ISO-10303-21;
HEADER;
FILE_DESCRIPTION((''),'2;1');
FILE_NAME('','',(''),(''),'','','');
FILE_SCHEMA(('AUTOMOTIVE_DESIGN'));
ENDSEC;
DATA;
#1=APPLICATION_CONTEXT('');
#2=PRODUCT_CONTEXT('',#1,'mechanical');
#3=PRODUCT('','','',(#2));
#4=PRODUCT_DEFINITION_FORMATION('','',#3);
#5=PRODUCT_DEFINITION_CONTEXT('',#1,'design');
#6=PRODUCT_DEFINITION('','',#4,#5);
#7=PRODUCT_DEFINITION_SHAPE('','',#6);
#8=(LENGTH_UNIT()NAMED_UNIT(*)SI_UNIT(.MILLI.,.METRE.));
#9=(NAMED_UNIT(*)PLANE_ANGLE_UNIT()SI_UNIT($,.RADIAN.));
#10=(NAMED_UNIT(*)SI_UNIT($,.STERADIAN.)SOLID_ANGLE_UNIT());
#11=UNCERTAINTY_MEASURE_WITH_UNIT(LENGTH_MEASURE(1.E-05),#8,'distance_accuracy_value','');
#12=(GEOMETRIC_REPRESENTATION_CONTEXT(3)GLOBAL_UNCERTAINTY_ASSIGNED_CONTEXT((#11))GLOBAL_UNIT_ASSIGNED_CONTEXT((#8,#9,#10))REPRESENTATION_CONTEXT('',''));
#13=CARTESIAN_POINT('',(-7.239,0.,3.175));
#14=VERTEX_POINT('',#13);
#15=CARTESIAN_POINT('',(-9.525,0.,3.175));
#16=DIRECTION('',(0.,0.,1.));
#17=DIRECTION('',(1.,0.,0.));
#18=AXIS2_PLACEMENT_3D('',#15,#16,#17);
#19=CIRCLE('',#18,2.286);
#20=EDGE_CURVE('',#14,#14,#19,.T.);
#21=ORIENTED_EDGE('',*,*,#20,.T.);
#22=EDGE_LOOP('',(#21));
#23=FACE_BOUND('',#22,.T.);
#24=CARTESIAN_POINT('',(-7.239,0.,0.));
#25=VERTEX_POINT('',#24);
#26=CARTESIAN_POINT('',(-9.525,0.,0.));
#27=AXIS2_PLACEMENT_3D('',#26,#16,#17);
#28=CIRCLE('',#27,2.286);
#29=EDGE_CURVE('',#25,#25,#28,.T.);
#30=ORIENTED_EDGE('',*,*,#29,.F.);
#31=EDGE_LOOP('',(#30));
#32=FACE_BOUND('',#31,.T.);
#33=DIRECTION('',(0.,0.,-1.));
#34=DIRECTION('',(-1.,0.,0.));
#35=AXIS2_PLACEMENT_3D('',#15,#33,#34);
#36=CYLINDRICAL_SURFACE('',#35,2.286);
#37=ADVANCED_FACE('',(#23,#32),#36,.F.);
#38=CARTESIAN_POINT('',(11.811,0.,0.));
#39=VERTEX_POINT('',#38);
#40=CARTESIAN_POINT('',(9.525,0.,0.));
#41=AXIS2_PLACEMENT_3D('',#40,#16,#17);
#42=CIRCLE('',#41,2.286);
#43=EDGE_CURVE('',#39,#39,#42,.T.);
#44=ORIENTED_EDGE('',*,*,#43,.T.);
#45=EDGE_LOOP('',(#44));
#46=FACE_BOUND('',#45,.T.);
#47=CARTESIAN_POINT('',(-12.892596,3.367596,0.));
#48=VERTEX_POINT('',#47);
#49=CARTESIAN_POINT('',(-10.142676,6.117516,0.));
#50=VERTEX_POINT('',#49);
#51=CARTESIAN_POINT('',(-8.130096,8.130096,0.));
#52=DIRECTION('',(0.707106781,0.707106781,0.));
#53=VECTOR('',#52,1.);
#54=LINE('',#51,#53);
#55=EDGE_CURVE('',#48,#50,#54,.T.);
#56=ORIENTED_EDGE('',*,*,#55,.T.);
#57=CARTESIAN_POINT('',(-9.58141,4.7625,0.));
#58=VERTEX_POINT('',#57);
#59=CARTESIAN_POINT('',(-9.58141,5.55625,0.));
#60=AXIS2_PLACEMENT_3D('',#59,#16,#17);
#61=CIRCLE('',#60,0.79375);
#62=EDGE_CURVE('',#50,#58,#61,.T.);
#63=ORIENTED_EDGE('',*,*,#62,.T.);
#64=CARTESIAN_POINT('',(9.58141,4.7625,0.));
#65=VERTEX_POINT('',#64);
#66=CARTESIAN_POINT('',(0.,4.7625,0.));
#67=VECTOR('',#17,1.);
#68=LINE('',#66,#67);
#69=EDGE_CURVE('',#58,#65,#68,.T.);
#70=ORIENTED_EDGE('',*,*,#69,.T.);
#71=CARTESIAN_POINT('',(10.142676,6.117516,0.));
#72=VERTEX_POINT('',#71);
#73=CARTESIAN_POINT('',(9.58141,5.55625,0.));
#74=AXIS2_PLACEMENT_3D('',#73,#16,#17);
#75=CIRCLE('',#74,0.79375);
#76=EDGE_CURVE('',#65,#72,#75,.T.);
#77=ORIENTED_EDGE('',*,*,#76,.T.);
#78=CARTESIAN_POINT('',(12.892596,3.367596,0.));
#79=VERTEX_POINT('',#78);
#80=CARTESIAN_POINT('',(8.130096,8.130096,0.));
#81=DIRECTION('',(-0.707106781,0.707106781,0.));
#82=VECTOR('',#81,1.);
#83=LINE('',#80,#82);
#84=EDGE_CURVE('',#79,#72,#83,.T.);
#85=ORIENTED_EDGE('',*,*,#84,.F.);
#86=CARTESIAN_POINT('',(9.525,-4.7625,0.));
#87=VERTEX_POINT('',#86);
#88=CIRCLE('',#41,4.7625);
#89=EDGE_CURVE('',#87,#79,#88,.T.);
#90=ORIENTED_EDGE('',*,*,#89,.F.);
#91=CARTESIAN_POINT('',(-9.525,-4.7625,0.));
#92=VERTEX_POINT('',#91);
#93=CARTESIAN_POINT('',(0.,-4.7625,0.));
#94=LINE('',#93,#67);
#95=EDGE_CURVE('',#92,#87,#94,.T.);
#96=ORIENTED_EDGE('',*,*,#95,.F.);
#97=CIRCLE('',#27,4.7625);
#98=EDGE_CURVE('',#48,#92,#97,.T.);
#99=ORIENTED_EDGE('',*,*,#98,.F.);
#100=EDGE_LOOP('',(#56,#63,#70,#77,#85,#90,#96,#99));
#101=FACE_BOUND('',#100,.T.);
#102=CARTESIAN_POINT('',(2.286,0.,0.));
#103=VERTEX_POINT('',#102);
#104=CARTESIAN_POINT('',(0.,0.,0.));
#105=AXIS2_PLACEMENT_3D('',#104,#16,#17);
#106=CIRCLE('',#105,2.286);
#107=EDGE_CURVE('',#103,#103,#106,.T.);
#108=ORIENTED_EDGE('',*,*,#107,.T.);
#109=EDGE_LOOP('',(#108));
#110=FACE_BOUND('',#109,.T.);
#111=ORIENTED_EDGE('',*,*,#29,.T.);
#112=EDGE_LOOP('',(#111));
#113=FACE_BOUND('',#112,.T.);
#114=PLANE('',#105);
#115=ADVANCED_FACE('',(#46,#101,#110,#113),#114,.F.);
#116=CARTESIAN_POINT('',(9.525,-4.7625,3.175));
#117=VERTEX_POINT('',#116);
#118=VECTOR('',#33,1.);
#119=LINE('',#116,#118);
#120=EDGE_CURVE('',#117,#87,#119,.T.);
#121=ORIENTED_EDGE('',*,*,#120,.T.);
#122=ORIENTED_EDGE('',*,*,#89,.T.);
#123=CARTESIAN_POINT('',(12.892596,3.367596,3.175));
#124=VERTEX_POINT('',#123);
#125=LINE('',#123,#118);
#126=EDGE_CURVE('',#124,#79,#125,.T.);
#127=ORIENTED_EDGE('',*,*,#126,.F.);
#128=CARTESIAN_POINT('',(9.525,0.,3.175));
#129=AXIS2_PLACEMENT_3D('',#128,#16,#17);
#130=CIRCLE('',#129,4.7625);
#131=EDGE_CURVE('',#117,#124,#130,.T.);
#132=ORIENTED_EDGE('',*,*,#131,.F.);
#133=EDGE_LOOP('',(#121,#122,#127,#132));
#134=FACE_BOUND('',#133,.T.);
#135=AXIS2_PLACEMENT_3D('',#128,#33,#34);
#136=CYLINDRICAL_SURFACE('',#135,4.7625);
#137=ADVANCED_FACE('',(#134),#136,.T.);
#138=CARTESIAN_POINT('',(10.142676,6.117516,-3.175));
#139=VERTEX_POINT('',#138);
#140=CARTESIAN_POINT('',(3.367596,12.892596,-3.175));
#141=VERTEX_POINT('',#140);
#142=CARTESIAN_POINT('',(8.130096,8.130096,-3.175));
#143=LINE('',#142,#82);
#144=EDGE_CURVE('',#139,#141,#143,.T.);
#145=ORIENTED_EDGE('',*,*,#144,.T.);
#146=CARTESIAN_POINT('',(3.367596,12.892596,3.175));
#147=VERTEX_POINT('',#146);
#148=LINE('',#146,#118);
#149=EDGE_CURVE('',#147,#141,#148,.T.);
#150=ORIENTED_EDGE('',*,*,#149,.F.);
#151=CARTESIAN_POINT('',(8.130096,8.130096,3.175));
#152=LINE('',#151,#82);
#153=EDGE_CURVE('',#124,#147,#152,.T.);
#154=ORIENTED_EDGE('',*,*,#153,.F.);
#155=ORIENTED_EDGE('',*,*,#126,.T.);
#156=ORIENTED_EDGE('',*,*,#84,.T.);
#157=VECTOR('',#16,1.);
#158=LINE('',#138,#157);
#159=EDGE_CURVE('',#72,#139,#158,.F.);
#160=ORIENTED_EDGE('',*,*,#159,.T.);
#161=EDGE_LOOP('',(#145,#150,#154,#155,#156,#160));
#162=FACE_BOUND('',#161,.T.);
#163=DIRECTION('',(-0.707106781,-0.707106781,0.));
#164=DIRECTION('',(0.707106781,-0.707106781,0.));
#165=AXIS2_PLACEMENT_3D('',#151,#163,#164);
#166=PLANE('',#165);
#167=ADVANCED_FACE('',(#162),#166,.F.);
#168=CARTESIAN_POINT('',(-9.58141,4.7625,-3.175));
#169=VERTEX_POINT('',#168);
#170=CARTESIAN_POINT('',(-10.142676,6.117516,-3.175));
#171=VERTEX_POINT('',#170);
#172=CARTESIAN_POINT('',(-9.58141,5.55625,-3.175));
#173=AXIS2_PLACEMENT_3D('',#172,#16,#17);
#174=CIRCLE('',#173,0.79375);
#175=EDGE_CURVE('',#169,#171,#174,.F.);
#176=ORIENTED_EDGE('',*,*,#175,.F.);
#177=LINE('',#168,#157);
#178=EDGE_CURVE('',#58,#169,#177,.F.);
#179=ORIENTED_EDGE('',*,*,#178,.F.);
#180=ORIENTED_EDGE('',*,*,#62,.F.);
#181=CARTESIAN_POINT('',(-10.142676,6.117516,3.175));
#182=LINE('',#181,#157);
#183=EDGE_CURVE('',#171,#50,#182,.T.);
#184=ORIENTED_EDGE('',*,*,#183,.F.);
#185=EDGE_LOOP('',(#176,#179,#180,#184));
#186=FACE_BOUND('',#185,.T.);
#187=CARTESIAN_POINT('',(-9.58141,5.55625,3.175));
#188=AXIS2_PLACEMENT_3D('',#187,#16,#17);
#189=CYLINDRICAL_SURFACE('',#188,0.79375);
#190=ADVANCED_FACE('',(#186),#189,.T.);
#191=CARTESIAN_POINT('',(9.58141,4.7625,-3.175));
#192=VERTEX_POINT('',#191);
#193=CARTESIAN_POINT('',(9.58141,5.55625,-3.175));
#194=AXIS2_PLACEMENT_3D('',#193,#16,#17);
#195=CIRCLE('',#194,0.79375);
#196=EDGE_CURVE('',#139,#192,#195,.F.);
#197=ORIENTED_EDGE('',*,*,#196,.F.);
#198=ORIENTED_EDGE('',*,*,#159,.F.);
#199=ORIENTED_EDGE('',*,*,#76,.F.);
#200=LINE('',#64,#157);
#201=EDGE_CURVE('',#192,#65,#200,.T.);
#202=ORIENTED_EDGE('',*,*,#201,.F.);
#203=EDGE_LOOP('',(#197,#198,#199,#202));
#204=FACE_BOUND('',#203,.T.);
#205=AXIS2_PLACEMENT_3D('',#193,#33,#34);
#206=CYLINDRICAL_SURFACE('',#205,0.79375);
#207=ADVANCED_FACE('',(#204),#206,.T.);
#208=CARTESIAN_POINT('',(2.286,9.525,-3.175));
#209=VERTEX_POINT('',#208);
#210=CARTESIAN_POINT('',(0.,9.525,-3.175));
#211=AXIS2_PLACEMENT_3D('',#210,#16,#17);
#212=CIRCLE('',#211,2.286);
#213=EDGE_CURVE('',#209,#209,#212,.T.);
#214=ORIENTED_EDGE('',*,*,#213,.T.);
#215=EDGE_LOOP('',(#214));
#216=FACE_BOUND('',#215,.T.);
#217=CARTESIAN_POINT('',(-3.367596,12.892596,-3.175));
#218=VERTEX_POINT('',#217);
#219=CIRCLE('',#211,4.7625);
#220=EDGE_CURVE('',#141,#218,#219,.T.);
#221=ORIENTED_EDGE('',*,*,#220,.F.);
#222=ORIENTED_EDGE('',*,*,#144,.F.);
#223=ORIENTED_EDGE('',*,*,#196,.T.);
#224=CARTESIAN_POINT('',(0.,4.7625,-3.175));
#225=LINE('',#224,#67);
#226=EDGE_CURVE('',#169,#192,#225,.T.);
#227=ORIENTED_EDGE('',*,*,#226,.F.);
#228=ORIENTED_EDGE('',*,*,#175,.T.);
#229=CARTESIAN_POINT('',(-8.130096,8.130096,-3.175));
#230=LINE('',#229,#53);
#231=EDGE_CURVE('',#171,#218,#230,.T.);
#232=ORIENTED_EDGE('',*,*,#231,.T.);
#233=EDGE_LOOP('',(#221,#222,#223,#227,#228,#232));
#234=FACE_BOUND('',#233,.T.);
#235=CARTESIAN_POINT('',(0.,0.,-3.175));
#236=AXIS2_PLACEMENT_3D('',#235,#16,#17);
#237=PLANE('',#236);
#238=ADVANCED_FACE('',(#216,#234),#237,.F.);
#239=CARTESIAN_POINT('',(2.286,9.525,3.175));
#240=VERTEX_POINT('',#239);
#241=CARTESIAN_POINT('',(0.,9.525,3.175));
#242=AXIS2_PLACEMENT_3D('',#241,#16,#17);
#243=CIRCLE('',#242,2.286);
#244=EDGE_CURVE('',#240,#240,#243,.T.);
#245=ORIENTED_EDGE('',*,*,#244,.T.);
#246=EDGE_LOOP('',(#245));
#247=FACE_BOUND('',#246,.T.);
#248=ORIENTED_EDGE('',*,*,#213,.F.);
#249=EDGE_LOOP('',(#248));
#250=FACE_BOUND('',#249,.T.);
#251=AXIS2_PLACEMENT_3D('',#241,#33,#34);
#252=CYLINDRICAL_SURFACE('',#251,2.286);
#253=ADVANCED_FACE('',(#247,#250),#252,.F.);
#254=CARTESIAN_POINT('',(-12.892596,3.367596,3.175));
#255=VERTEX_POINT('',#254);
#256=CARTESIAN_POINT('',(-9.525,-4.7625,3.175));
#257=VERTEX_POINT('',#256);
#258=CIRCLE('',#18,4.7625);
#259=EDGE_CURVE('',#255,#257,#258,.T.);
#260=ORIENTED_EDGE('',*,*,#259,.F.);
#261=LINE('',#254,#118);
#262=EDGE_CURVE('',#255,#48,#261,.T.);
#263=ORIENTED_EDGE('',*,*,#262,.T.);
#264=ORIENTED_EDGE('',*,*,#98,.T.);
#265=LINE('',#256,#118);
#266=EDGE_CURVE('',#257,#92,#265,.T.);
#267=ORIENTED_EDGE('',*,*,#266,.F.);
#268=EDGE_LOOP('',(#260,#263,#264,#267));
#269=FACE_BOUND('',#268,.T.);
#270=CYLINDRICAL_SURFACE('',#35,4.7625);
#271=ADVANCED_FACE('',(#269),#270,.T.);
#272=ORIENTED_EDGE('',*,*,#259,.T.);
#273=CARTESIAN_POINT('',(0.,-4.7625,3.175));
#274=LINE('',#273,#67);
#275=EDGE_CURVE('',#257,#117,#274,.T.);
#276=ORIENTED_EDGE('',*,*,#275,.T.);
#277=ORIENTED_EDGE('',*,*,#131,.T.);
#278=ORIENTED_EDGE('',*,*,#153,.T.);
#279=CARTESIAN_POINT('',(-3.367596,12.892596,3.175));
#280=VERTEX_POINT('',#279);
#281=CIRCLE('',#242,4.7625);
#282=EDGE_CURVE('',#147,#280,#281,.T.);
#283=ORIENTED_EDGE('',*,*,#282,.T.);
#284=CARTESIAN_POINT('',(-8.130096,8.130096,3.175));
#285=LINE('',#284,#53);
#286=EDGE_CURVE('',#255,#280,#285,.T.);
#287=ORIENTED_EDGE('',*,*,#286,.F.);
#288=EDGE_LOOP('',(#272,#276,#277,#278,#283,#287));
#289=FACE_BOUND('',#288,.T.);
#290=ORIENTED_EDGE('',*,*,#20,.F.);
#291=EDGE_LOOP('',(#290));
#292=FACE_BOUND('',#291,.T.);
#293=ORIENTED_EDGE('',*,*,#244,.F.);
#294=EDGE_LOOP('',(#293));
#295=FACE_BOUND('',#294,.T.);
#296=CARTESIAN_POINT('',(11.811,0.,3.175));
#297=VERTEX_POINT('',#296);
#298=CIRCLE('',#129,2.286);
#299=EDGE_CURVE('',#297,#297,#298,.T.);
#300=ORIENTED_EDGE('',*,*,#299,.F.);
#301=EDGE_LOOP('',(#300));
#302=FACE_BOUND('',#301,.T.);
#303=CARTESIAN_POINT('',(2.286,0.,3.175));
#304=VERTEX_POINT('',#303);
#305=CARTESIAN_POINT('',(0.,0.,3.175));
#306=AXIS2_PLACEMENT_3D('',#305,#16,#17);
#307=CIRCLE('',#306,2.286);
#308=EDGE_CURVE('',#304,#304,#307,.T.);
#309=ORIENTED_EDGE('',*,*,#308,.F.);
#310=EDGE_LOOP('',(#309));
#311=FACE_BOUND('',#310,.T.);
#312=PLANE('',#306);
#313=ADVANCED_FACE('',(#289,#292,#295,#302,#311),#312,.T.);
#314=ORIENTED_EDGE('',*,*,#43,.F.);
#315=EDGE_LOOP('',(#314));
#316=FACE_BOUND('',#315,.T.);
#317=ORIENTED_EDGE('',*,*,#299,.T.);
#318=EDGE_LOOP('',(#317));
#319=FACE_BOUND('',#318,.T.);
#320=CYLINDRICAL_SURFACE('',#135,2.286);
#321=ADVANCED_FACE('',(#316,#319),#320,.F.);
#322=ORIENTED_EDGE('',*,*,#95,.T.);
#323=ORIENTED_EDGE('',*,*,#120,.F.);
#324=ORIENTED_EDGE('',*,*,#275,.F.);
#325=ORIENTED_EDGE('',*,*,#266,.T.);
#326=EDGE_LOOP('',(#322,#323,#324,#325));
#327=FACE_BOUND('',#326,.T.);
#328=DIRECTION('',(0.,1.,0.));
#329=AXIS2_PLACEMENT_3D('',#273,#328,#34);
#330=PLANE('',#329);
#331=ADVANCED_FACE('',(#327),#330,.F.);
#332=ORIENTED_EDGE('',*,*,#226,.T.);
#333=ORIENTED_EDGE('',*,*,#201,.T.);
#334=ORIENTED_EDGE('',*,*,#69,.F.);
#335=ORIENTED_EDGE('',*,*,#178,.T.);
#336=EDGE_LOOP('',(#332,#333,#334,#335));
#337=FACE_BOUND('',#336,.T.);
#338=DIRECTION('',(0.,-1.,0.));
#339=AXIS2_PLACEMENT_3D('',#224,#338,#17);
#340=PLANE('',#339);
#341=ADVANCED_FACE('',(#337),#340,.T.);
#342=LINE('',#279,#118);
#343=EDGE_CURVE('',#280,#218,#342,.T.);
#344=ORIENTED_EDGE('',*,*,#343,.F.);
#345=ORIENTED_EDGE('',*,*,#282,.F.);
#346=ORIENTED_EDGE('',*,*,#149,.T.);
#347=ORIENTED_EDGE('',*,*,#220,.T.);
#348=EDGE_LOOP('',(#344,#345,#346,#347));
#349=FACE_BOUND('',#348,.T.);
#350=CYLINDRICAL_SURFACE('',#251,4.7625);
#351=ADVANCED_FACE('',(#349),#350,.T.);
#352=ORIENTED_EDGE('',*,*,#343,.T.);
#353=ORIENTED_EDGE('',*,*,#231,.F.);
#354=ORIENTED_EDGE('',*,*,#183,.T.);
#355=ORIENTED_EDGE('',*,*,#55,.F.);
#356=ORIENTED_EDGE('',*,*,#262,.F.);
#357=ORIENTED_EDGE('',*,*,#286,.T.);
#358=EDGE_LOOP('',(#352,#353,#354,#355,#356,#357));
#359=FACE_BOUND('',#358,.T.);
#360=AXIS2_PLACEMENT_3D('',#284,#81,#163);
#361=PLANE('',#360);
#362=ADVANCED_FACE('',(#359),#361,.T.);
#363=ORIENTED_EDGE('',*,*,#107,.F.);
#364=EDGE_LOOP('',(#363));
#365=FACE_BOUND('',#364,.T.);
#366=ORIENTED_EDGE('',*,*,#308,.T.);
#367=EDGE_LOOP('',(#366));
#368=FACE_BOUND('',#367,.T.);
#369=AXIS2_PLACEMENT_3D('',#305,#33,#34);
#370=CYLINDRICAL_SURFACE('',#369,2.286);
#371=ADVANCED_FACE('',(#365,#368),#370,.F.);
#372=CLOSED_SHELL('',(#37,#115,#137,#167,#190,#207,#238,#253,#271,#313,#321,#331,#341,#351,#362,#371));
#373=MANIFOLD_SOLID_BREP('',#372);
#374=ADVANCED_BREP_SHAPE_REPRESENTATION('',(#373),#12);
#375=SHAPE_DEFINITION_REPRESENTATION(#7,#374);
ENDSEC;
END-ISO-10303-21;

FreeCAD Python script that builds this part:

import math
import FreeCAD as App
import Part
import Sketcher
from FreeCAD import Vector
Q = App.Units.Quantity


def edges_at(feature, points):
    """Names of the edges that pass closest to the given points."""
    edges = feature.Shape.Edges
    near = lambda p: min(range(len(edges)), key=lambda i: edges[i].distToShape(Part.Vertex(*p))[0])
    return sorted({f"Edge{near(p) + 1}" for p in points})

doc = App.newDocument("Part")
body = doc.addObject("PartDesign::Body", "Body")

# Sketch on XY plane
sketch1 = body.newObject("Sketcher::SketchObject", "Sketch")
sketch1.AttachmentSupport = (doc.getObject("XY_Plane"), [""])
sketch1.MapMode = "FlatFace"
sketch1.addGeometry([
    Part.LineSegment(Vector(-3.4, 12.9, 0), Vector(-12.9, 3.4, 0)),  # 0
    Part.ArcOfCircle(Part.Circle(Vector(-9.5, 0, 0), Vector(0, 0, 1), 4.8), math.radians(135), math.radians(270)),  # 1
    Part.LineSegment(Vector(-9.5, -4.8, 0), Vector(9.5, -4.8, 0)),  # 2
    Part.ArcOfCircle(Part.Circle(Vector(9.5, 0, 0), Vector(0, 0, 1), 4.8), math.radians(-90), math.radians(45)),  # 3
    Part.LineSegment(Vector(12.9, 3.4, 0), Vector(3.4, 12.9, 0)),  # 4
    Part.ArcOfCircle(Part.Circle(Vector(0, 9.5, 0), Vector(0, 0, 1), 4.8), math.radians(45), math.radians(135)),  # 5
    Part.Circle(Vector(9.5, 0, 0), Vector(0, 0, 1), 2.3),  # 6
    Part.Circle(Vector(0, 0, 0), Vector(0, 0, 1), 2.3),  # 7
    Part.Circle(Vector(-9.5, 0, 0), Vector(0, 0, 1), 2.3),  # 8
    Part.Circle(Vector(0, 9.5, 0), Vector(0, 0, 1), 2.3),  # 9
], False)
sketch1.addConstraint([
    Sketcher.Constraint("Tangent", 0, 2, 1, 1),
    Sketcher.Constraint("Tangent", 1, 2, 2, 1),
    Sketcher.Constraint("Tangent", 2, 2, 3, 1),
    Sketcher.Constraint("Tangent", 3, 2, 4, 1),
    Sketcher.Constraint("Tangent", 4, 2, 5, 1),
    Sketcher.Constraint("Tangent", 5, 2, 0, 1),
    Sketcher.Constraint("Horizontal", 2),
    Sketcher.Constraint("Coincident", 7, 3, -1, 1),
    Sketcher.Constraint("Coincident", 6, 3, 3, 3),
    Sketcher.Constraint("Coincident", 8, 3, 1, 3),
    Sketcher.Constraint("Coincident", 9, 3, 5, 3),
    Sketcher.Constraint("Equal", 1, 3),
    Sketcher.Constraint("Equal", 3, 5),
    Sketcher.Constraint("Equal", 6, 7),
    Sketcher.Constraint("Equal", 7, 8),
    Sketcher.Constraint("Equal", 8, 9),
    Sketcher.Constraint("Symmetric", 1, 3, 3, 3, -1, 1),
    Sketcher.Constraint("PointOnObject", 5, 3, -2),
    Sketcher.Constraint("Perpendicular", 0, 4),
    Sketcher.Constraint("Diameter", 6, Q("0.18 in")),
    Sketcher.Constraint("Radius", 1, Q("0.1875 in")),
    Sketcher.Constraint("DistanceX", 2, 1, 2, 2, Q("0.75 in")),
])
pad1 = body.newObject("PartDesign::Pad", "Pad")
pad1.Profile = sketch1
pad1.Length = Q("0.125 in")

# Sketch on XY plane
sketch2 = body.newObject("Sketcher::SketchObject", "Sketch001")
sketch2.AttachmentSupport = (doc.getObject("XY_Plane"), [""])
sketch2.MapMode = "FlatFace"
sketch2.AttachmentOffset = App.Placement(Vector(0, 0, -0.125 * 25.4), App.Rotation())
sketch2.addGeometry([
    Part.LineSegment(Vector(-3.4, 12.9, 0), Vector(-11.5, 4.8, 0)),  # 0
    Part.LineSegment(Vector(-11.5, 4.8, 0), Vector(11.5, 4.8, 0)),  # 1
    Part.LineSegment(Vector(11.5, 4.8, 0), Vector(3.4, 12.9, 0)),  # 2
    Part.ArcOfCircle(Part.Circle(Vector(0, 9.5, 0), Vector(0, 0, 1), 4.8), math.radians(45), math.radians(135)),  # 3
    Part.Circle(Vector(0, 9.5, 0), Vector(0, 0, 1), 2.3),  # 4
], False)
sketch2.addConstraint([
    Sketcher.Constraint("Coincident", 0, 2, 1, 1),
    Sketcher.Constraint("Coincident", 1, 2, 2, 1),
    Sketcher.Constraint("Tangent", 2, 2, 3, 1),
    Sketcher.Constraint("Tangent", 3, 2, 0, 1),
    Sketcher.Constraint("Horizontal", 1),
    Sketcher.Constraint("Coincident", 4, 3, 3, 3),
    Sketcher.Constraint("Symmetric", 2, 2, 3, 2, -2),
    Sketcher.Constraint("Perpendicular", 0, 2),
    Sketcher.Constraint("Diameter", 4, Q("0.18 in")),
    Sketcher.Constraint("Radius", 3, Q("0.1875 in")),
    Sketcher.Constraint("DistanceY", -1, 1, 3, 3, Q("0.375 in")),
    Sketcher.Constraint("DistanceY", -1, 1, 0, 2, Q("0.1875 in")),
])
pad2 = body.newObject("PartDesign::Pad", "Pad001")
pad2.Profile = sketch2
pad2.Length = Q("0.125 in")
doc.recompute()

fillet = body.newObject("PartDesign::Fillet", "Fillet")
fillet.Base = (pad2, edges_at(pad2, [(11.498, 4.763, -1.587), (-11.498, 4.763, -1.587)]))
fillet.Radius = Q("0.03125 in")

doc.recompute()
